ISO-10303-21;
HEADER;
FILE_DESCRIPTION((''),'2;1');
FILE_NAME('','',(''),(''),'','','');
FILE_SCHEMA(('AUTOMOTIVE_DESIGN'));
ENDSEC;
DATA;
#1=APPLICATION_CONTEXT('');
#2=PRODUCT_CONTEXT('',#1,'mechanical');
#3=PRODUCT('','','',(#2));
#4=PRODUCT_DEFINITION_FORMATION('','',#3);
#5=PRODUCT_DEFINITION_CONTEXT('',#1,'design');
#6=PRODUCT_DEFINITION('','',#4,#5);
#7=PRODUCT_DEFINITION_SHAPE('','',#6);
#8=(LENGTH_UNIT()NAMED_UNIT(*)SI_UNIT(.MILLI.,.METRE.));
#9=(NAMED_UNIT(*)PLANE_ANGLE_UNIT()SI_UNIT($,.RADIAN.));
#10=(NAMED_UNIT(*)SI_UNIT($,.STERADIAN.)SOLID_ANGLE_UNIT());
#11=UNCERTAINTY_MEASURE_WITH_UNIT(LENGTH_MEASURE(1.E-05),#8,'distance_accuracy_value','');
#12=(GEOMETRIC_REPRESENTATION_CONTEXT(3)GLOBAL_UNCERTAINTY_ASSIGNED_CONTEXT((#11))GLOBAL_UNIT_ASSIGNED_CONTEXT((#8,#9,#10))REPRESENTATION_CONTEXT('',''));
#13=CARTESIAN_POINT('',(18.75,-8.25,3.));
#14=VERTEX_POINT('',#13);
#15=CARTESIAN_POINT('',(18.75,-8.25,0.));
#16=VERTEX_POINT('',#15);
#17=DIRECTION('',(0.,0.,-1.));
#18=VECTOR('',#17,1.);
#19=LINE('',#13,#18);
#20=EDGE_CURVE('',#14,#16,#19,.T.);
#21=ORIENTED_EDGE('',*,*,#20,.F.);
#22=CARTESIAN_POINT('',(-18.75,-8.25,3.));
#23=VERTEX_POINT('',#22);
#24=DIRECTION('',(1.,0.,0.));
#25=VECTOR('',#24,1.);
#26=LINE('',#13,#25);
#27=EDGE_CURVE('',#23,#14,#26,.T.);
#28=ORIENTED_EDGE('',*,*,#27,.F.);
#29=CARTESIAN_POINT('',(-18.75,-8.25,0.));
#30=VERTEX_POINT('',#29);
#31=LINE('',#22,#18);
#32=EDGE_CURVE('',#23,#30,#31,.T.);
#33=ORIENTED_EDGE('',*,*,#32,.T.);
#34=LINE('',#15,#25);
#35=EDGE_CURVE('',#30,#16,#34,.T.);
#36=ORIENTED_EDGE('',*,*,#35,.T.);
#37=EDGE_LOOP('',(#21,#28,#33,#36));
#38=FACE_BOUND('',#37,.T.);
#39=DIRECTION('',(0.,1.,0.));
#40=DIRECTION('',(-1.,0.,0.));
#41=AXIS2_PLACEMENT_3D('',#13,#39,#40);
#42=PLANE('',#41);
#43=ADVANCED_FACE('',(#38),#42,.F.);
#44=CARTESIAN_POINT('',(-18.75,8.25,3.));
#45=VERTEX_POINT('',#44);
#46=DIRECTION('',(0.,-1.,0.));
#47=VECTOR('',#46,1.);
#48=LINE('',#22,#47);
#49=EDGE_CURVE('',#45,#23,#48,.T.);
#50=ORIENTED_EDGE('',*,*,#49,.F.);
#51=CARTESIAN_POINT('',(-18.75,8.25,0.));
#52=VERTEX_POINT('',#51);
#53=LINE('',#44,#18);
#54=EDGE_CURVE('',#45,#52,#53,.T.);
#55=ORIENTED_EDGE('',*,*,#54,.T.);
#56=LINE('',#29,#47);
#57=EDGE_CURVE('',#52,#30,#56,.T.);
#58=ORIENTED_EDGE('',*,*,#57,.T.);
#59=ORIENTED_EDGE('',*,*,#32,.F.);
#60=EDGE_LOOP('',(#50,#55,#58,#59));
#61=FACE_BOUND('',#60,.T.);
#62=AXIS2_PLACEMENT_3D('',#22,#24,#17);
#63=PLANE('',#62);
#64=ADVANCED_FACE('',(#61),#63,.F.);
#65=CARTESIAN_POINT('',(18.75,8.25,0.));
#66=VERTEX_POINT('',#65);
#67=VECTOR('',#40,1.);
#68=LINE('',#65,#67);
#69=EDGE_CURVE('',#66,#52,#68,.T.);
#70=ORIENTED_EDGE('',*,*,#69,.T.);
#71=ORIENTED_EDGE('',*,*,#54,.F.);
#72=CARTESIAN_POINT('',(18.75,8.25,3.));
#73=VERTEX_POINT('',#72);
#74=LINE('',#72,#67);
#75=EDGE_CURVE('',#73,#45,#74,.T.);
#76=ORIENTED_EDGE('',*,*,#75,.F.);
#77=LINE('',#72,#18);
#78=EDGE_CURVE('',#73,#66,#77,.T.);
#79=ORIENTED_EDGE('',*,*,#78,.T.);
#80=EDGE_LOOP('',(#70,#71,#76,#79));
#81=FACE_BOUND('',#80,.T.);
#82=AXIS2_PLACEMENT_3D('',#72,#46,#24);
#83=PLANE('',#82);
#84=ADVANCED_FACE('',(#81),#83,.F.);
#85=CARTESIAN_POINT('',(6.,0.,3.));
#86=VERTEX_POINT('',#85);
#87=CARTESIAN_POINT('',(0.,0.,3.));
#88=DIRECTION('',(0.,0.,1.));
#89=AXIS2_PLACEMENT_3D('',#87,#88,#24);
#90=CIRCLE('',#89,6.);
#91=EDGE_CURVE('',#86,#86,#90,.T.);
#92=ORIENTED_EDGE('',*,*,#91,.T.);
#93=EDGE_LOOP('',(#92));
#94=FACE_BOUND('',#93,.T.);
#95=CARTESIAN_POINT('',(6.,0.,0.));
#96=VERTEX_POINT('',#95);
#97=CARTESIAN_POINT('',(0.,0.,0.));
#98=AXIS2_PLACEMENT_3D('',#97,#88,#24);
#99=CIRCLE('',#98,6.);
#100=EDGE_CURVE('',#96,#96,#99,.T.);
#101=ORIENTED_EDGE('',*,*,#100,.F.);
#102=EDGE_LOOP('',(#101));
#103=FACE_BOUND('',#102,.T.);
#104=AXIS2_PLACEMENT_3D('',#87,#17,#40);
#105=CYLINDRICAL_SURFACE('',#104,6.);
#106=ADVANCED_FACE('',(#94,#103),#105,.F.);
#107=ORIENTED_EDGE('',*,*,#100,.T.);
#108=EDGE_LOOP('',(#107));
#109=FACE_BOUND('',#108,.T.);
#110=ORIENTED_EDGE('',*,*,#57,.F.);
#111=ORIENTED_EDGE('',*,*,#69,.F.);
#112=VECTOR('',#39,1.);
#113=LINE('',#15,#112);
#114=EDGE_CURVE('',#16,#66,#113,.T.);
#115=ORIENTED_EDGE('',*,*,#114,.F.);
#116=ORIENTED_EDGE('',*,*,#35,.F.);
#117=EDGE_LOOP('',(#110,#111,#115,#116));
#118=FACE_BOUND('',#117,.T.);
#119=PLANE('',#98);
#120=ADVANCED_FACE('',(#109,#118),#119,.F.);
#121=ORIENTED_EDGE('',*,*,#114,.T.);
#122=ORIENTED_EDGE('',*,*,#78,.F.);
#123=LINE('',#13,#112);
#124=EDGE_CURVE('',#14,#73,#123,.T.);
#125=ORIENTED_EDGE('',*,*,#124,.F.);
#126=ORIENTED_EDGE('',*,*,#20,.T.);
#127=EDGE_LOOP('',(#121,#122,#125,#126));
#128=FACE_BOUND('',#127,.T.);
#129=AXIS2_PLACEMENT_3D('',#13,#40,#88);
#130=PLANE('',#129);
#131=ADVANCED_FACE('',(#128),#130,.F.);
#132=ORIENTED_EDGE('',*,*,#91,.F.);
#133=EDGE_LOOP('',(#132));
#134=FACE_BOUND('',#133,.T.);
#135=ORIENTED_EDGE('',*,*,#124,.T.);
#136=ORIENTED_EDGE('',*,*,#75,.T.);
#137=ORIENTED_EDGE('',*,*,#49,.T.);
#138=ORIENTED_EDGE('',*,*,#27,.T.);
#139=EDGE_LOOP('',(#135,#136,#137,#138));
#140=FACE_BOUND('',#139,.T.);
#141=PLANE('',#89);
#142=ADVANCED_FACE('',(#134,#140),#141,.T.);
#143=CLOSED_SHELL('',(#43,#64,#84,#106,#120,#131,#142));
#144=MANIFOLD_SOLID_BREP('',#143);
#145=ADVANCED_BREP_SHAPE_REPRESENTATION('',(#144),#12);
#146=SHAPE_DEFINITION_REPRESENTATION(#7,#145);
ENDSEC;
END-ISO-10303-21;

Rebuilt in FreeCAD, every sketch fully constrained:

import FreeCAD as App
import Part
import Sketcher

V = App.Vector
Q = App.Units.Quantity


def add_polygon(sketch, points):
    """Adds a closed chain of lines whose ends are joined by coincident constraints."""
    first, n = sketch.GeometryCount, len(points)
    for a, b in zip(points, points[1:] + points[:1]):
        sketch.addGeometry(Part.LineSegment(App.Vector(*a, 0), App.Vector(*b, 0)), False)
    for i in range(n):
        sketch.addConstraint(Sketcher.Constraint("Coincident", first + i, 2, first + (i + 1) % n, 1))

doc = App.newDocument("Part")
body = doc.addObject("PartDesign::Body", "Body")

# Sketch on XY plane
sketch1 = body.newObject("Sketcher::SketchObject", "Sketch")
sketch1.AttachmentSupport = (doc.getObject("XY_Plane"), [""])
sketch1.MapMode = "FlatFace"
add_polygon(sketch1, [(-19, 8), (-19, -8), (19, -8), (19, 8)])  # lines 0-3
sketch1.addGeometry(Part.Circle(V(0, 0, 0), V(0, 0, 1), 6), False)  # 4
sketch1.addConstraint([
    Sketcher.Constraint("Vertical", 0),
    Sketcher.Constraint("Horizontal", 1),
    Sketcher.Constraint("Vertical", 2),
    Sketcher.Constraint("Horizontal", 3),
    Sketcher.Constraint("Coincident", 4, 3, -1, 1),
    Sketcher.Constraint("Symmetric", 0, 2, 2, 2, -1, 1),
    Sketcher.Constraint("Diameter", 4, Q("12 mm")),
    Sketcher.Constraint("DistanceX", 1, 1, 1, 2, Q("37.5 mm")),
    Sketcher.Constraint("DistanceY", 0, 2, 0, 1, Q("16.5 mm")),
])
pad1 = body.newObject("PartDesign::Pad", "Pad")
pad1.Profile = sketch1
pad1.Length = 3

doc.recompute()
